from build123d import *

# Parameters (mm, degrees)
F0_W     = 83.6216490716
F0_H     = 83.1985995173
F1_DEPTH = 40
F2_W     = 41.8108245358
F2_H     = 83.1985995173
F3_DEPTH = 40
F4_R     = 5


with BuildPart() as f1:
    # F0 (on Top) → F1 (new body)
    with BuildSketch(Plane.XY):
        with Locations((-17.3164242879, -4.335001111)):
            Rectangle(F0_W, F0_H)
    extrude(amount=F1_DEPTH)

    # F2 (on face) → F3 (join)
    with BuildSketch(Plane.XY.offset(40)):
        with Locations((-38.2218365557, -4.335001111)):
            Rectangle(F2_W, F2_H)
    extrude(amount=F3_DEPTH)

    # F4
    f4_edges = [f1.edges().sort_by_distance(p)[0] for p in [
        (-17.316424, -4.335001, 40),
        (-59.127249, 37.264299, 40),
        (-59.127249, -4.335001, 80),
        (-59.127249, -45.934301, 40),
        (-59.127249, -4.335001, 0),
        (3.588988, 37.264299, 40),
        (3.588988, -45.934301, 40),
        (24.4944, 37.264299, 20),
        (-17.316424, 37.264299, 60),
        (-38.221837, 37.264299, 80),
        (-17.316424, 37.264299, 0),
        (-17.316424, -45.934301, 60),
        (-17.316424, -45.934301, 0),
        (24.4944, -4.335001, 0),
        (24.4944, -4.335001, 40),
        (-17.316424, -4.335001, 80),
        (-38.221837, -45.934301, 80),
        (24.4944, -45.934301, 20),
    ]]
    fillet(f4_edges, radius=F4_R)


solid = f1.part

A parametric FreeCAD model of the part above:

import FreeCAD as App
import Part
import Sketcher
from FreeCAD import Vector
Q = App.Units.Quantity

doc = App.newDocument("Part")
body = doc.addObject("PartDesign::Body", "Body")

# Sketch on XY plane
sketch1 = body.newObject("Sketcher::SketchObject", "Sketch")
sketch1.AttachmentSupport = (doc.getObject("XY_Plane"), [""])
sketch1.MapMode = "FlatFace"
sketch1.addGeometry([
    Part.LineSegment(Vector(-59, 37, 0), Vector(-59, -46, 0)),
    Part.LineSegment(Vector(-59, -46, 0), Vector(24, -46, 0)),
    Part.LineSegment(Vector(24, -46, 0), Vector(24, 37, 0)),
    Part.LineSegment(Vector(24, 37, 0), Vector(-59, 37, 0)),
], False)
sketch1.addConstraint([
    Sketcher.Constraint("Coincident", 0, 2, 1, 1),
    Sketcher.Constraint("Coincident", 1, 2, 2, 1),
    Sketcher.Constraint("Coincident", 2, 2, 3, 1),
    Sketcher.Constraint("Coincident", 3, 2, 0, 1),
    Sketcher.Constraint("Vertical", 0),
    Sketcher.Constraint("Horizontal", 1),
    Sketcher.Constraint("Vertical", 2),
    Sketcher.Constraint("Horizontal", 3),
    Sketcher.Constraint("DistanceY", 0, 2, 0, 1, Q("83.1986 mm")),
    Sketcher.Constraint("DistanceX", 1, 1, 1, 2, Q("83.621649 mm")),
    Sketcher.Constraint("DistanceY", 0, 2, -1, 1, Q("45.934301 mm")),
    Sketcher.Constraint("DistanceX", -1, 1, 1, 2, Q("24.4944 mm")),
])
pad1 = body.newObject("PartDesign::Pad", "Pad")
pad1.Profile = sketch1
pad1.Length = 40

# Sketch on XY plane
sketch2 = body.newObject("Sketcher::SketchObject", "Sketch001")
sketch2.AttachmentSupport = (doc.getObject("XY_Plane"), [""])
sketch2.MapMode = "FlatFace"
sketch2.AttachmentOffset = App.Placement(Vector(0, 0, 40), App.Rotation())
sketch2.addGeometry([
    Part.LineSegment(Vector(-59, 37, 0), Vector(-59, -46, 0)),
    Part.LineSegment(Vector(-59, -46, 0), Vector(-17, -46, 0)),
    Part.LineSegment(Vector(-17, -46, 0), Vector(-17, 37, 0)),
    Part.LineSegment(Vector(-17, 37, 0), Vector(-59, 37, 0)),
], False)
sketch2.addConstraint([
    Sketcher.Constraint("Coincident", 0, 2, 1, 1),
    Sketcher.Constraint("Coincident", 1, 2, 2, 1),
    Sketcher.Constraint("Coincident", 2, 2, 3, 1),
    Sketcher.Constraint("Coincident", 3, 2, 0, 1),
    Sketcher.Constraint("Vertical", 0),
    Sketcher.Constraint("Horizontal", 1),
    Sketcher.Constraint("Vertical", 2),
    Sketcher.Constraint("Horizontal", 3),
    Sketcher.Constraint("DistanceY", 0, 2, 0, 1, Q("83.1986 mm")),
    Sketcher.Constraint("DistanceY", 0, 2, -1, 1, Q("45.934301 mm")),
    Sketcher.Constraint("DistanceX", 1, 1, 1, 2, Q("41.810825 mm")),
    Sketcher.Constraint("DistanceX", 0, 2, -1, 1, Q("59.127249 mm")),
])
pad2 = body.newObject("PartDesign::Pad", "Pad001")
pad2.Profile = sketch2
pad2.Length = 40
doc.recompute()

fillet = body.newObject("PartDesign::Fillet", "Fillet")
fillet.Base = (pad2, ["Edge1"])
fillet.UseAllEdges = True
fillet.Radius = 5

doc.recompute()
